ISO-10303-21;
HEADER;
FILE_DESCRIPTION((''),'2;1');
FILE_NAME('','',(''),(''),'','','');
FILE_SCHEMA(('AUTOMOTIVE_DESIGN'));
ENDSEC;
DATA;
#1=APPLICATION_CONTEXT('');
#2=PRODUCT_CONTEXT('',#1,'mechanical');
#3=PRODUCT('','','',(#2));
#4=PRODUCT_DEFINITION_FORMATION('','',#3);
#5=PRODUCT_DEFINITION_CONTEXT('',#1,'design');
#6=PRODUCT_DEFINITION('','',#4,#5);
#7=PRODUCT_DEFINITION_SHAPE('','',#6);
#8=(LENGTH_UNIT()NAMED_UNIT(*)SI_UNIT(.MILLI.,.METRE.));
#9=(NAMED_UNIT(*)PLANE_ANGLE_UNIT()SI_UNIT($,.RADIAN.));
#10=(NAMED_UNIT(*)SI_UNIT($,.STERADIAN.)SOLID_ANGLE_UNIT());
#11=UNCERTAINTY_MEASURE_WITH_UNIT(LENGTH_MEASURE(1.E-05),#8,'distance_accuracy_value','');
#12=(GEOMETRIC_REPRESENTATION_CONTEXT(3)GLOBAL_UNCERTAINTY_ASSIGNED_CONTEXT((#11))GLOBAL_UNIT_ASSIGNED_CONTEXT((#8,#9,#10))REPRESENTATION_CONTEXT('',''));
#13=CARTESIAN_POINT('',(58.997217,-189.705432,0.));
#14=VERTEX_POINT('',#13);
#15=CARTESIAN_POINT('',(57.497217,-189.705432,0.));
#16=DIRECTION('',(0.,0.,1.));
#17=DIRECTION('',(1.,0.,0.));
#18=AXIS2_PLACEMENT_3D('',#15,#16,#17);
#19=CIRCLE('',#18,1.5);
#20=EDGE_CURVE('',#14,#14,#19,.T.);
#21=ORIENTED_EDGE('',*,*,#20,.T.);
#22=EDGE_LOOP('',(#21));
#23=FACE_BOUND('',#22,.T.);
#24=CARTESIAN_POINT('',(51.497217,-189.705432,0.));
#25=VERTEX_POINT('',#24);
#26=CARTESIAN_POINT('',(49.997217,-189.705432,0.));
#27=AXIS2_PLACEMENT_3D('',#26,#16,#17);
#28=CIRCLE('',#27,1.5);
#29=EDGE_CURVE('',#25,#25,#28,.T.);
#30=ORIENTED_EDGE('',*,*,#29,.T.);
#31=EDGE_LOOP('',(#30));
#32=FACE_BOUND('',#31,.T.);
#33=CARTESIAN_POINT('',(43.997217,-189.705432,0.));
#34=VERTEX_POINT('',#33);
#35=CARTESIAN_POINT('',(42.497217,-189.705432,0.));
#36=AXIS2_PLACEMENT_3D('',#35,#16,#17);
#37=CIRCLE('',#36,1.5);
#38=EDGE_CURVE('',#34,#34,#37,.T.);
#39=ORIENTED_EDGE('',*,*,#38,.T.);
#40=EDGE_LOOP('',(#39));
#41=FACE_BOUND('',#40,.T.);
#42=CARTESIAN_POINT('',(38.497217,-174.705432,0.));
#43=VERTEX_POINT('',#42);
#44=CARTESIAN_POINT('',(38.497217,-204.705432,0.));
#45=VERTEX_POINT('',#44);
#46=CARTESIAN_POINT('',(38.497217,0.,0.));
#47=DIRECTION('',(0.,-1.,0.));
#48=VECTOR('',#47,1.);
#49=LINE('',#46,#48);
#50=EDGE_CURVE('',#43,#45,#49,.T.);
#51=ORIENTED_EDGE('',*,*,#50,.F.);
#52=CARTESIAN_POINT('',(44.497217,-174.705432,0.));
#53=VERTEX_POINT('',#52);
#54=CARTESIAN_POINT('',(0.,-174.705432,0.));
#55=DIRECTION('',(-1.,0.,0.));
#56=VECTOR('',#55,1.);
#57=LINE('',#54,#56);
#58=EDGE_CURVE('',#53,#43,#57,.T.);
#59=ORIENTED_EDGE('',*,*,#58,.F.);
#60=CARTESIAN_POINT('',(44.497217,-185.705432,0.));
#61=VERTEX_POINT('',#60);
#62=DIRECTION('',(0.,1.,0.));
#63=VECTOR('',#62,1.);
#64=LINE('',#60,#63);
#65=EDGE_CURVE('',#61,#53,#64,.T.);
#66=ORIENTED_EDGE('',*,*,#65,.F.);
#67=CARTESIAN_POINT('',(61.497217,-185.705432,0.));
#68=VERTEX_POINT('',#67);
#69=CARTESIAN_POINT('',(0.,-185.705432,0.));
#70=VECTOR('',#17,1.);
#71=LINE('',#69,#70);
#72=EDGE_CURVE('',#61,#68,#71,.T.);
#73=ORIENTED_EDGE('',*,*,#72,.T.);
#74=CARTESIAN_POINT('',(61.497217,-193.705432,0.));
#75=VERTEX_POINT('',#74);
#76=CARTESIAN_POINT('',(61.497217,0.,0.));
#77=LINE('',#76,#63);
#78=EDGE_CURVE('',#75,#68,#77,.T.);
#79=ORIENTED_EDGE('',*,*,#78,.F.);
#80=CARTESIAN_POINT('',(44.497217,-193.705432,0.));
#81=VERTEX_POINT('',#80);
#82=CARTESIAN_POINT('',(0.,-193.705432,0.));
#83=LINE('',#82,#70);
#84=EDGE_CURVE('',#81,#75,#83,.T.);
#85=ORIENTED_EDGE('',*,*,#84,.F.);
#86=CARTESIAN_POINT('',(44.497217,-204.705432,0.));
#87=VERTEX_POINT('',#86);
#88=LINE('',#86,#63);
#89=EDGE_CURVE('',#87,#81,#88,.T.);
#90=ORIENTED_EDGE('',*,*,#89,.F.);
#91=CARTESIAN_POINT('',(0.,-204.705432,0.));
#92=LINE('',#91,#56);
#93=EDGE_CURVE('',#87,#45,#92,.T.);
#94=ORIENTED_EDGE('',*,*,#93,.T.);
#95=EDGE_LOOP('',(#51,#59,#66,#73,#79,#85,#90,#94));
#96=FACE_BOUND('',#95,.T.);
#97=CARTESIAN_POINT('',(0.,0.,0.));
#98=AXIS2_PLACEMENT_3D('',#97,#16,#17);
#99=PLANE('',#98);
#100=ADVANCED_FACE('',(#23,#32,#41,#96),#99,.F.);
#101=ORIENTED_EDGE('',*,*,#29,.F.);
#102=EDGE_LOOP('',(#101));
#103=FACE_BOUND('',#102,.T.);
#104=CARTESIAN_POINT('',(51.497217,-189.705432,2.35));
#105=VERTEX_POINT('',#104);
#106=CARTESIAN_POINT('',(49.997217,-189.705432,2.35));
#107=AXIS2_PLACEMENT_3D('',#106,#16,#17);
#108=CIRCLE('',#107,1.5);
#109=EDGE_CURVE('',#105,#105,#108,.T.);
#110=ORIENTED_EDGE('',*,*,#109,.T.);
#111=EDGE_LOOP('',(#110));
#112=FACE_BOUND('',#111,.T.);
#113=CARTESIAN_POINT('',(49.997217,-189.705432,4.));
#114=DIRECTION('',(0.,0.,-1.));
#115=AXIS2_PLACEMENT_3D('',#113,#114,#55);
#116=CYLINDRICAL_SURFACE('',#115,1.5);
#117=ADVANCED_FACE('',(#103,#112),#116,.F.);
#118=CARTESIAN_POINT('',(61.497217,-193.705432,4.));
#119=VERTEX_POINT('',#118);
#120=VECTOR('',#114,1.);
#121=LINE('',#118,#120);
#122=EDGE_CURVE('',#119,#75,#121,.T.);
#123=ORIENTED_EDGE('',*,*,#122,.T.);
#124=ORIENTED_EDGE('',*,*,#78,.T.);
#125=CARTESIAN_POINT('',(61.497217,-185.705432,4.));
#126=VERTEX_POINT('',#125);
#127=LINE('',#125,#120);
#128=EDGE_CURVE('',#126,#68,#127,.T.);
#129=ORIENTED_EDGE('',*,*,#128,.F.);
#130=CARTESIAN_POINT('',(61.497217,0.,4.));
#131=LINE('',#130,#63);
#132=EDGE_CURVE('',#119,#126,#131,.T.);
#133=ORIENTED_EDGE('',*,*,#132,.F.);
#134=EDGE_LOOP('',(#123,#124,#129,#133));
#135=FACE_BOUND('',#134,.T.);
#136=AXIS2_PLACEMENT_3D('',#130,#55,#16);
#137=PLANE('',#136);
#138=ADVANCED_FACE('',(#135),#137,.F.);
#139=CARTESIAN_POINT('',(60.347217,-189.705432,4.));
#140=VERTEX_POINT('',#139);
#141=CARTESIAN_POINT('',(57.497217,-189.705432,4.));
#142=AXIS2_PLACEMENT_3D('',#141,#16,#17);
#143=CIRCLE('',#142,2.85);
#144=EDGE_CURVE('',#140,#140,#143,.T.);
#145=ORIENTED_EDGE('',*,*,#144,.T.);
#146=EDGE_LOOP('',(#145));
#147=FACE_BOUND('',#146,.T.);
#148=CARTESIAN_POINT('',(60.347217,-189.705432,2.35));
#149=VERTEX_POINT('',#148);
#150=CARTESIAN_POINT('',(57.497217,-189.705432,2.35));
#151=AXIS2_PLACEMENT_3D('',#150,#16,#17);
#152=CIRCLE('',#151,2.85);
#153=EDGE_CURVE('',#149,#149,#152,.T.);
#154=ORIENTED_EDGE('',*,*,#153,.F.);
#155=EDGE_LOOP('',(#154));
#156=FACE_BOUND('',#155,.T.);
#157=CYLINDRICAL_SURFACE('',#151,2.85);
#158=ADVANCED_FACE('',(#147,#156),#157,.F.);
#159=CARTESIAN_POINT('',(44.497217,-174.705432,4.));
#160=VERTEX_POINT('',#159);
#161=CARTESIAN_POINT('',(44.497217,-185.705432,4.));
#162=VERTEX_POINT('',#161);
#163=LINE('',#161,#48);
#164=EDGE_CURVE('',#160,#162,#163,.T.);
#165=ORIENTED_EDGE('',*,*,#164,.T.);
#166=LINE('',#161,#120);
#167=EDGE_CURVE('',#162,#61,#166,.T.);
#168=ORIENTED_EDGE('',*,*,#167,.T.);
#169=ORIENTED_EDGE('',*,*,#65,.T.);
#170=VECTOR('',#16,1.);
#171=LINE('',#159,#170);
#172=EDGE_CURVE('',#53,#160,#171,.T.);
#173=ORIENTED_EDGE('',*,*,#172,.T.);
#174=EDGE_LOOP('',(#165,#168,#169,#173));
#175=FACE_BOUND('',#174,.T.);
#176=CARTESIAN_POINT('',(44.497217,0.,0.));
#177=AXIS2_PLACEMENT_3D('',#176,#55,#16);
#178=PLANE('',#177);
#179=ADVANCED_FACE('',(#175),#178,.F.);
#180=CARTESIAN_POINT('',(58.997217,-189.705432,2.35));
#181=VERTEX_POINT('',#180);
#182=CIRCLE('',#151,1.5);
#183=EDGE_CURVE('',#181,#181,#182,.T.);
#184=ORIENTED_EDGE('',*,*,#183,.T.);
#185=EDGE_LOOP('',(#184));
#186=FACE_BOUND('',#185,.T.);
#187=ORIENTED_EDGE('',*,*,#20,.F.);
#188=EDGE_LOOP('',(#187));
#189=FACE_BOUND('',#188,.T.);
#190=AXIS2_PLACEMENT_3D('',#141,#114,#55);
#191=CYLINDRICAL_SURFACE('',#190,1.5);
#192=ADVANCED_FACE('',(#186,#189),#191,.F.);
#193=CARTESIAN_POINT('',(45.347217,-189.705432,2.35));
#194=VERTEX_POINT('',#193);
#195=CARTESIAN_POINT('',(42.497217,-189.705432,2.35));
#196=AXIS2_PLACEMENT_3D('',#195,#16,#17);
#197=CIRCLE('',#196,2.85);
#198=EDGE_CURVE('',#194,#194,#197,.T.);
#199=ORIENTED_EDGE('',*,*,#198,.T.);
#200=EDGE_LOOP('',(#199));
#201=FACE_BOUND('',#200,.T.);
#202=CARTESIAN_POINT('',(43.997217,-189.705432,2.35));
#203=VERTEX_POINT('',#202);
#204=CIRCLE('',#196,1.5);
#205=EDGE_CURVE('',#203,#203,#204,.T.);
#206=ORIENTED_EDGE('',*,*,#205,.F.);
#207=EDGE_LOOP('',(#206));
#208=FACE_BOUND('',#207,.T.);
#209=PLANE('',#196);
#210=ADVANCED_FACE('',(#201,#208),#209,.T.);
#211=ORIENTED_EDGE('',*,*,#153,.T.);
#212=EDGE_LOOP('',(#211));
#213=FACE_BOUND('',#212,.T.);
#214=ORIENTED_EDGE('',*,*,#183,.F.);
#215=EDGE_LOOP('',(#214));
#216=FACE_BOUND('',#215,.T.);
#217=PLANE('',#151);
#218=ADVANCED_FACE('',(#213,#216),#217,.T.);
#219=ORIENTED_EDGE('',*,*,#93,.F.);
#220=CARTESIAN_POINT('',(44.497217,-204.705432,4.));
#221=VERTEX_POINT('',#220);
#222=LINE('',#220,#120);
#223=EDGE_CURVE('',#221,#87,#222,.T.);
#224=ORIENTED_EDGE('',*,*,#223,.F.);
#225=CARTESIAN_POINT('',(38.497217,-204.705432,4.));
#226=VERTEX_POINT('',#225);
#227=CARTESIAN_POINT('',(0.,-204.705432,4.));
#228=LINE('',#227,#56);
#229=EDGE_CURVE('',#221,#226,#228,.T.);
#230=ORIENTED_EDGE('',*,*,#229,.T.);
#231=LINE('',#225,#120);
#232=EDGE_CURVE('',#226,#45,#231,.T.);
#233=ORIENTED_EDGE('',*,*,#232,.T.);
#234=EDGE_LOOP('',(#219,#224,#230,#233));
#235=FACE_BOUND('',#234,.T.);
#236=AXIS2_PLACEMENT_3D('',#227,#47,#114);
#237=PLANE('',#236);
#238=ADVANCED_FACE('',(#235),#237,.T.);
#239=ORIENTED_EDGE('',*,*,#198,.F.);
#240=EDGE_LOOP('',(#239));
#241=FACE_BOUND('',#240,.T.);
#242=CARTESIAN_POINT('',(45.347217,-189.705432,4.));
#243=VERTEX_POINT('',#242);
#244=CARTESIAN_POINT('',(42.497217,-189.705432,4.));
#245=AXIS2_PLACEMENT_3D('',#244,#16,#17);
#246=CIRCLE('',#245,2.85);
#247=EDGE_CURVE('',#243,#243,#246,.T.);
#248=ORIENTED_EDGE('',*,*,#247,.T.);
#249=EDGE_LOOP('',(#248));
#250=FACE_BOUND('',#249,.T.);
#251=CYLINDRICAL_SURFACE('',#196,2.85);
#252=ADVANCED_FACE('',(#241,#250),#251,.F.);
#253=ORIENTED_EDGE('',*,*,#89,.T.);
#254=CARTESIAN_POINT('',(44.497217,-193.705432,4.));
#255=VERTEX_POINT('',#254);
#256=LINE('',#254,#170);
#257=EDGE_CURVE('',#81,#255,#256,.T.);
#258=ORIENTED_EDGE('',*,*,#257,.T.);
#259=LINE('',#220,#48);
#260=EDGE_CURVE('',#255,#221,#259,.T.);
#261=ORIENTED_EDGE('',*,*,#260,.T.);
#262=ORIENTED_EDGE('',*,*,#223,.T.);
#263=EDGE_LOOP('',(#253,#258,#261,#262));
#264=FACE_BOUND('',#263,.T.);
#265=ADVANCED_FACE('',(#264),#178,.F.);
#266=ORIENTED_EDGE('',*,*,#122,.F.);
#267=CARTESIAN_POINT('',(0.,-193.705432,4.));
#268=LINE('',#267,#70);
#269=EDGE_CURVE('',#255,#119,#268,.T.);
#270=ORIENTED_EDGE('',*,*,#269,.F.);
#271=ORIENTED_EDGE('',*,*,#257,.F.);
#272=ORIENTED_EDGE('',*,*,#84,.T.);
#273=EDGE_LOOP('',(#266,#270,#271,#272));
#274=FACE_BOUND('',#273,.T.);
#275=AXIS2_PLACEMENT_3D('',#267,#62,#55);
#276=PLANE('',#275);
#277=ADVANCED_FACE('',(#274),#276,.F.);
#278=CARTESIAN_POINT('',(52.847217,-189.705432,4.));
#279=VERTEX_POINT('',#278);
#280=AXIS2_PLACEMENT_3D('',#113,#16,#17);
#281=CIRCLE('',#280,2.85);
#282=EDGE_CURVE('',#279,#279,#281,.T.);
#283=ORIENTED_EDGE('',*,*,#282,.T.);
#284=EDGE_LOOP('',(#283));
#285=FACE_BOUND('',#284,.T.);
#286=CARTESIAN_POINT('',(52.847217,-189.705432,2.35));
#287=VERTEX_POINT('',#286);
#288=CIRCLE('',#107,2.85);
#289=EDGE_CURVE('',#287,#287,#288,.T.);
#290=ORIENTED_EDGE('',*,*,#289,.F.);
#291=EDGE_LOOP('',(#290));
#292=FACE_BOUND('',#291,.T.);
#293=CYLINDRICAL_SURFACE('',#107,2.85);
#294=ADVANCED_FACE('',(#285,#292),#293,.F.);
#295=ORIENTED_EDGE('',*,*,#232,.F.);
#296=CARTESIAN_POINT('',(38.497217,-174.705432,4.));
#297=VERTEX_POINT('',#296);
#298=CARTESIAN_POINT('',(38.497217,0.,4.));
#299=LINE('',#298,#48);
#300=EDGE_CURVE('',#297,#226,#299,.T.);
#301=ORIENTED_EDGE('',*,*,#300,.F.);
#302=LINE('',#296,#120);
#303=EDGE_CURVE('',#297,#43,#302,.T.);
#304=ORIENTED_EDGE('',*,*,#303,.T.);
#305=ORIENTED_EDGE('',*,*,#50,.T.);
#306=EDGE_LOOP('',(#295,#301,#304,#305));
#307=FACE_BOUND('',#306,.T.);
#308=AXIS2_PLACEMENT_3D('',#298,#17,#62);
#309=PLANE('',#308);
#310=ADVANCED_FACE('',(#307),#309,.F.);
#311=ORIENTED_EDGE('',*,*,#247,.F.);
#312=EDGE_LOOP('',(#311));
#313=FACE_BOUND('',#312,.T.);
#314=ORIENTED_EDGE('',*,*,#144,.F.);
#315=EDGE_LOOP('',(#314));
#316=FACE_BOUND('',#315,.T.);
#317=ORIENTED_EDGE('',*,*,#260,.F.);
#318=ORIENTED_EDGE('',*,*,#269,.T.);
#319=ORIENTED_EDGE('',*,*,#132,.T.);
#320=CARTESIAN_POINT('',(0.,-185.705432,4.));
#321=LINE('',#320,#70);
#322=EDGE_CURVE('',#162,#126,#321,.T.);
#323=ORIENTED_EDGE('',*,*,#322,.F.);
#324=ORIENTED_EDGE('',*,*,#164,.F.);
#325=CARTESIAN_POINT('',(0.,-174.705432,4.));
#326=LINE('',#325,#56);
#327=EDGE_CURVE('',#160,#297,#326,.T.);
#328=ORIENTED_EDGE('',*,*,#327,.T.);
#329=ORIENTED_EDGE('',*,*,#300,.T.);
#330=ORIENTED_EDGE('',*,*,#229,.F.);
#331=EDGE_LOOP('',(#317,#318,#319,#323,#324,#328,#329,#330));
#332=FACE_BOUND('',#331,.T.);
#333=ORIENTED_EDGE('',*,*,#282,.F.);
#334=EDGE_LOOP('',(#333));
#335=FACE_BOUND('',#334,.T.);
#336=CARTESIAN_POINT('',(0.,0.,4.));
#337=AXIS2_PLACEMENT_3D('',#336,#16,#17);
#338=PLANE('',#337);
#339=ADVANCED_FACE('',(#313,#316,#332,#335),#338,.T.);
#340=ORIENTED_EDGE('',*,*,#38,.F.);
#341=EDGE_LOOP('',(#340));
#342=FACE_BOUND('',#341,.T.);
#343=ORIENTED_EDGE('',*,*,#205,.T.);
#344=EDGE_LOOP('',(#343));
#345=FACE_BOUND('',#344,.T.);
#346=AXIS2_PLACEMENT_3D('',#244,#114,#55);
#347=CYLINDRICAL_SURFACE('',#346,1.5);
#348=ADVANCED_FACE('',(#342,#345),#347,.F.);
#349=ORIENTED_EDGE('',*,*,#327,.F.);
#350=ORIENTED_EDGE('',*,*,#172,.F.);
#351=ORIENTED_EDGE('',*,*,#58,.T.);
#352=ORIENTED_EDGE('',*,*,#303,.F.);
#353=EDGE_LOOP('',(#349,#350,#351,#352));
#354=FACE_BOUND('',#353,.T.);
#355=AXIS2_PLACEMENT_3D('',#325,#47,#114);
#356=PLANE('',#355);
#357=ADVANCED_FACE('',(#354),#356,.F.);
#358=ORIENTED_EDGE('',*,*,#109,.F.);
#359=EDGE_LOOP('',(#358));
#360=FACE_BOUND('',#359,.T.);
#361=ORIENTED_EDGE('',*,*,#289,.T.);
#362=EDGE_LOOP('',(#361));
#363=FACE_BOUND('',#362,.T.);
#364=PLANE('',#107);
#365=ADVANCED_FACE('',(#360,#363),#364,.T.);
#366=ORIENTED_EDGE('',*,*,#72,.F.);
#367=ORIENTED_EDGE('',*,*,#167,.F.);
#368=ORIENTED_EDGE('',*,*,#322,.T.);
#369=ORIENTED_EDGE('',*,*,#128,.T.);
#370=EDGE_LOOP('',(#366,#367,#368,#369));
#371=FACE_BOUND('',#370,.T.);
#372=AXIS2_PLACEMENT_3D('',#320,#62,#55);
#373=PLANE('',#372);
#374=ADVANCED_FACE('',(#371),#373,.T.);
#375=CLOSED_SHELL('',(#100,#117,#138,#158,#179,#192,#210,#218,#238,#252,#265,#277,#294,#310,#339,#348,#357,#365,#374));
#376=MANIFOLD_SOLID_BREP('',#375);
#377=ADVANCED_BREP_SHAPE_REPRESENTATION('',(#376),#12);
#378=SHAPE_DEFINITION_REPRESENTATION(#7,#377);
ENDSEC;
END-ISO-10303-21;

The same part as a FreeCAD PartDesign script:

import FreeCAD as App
import Part
import Sketcher
from FreeCAD import Vector
Q = App.Units.Quantity


def add_polygon(sketch, points):
    """Adds a closed chain of lines whose ends are joined by coincident constraints."""
    first, n = sketch.GeometryCount, len(points)
    for a, b in zip(points, points[1:] + points[:1]):
        sketch.addGeometry(Part.LineSegment(App.Vector(*a, 0), App.Vector(*b, 0)), False)
    for i in range(n):
        sketch.addConstraint(Sketcher.Constraint("Coincident", first + i, 2, first + (i + 1) % n, 1))

doc = App.newDocument("Part")
body = doc.addObject("PartDesign::Body", "Body")

sketch1 = body.newObject("Sketcher::SketchObject", "Sketch")
sketch1.AttachmentSupport = (doc.getObject("XY_Plane"), [""])
sketch1.MapMode = "FlatFace"
add_polygon(sketch1, [(38.5, -204.7), (46.5, -204.7), (46.5, -193.7), (61.5, -193.7), (61.5, -185.7), (46.5, -185.7), (46.5, -174.7), (38.5, -174.7)])
sketch1.addGeometry(Part.Circle(Vector(42.5, -189.7, 0), Vector(0, 0, 1), 1.5), False)
sketch1.addGeometry(Part.Circle(Vector(50, -189.7, 0), Vector(0, 0, 1), 1.5), False)
sketch1.addGeometry(Part.Circle(Vector(57.5, -189.7, 0), Vector(0, 0, 1), 1.5), False)
sketch1.addConstraint([
    Sketcher.Constraint("Horizontal", 0),
    Sketcher.Constraint("Vertical", 1),
    Sketcher.Constraint("Horizontal", 2),
    Sketcher.Constraint("Vertical", 3),
    Sketcher.Constraint("Horizontal", 4),
    Sketcher.Constraint("Vertical", 5),
    Sketcher.Constraint("Horizontal", 6),
    Sketcher.Constraint("Vertical", 7),
    Sketcher.Constraint("Equal", 8, 9),
    Sketcher.Constraint("Equal", 9, 10),
    Sketcher.Constraint("Horizontal", 8, 3, 9, 3),
    Sketcher.Constraint("Horizontal", 9, 3, 10, 3),
    Sketcher.Constraint("Vertical", 1, 2, 4, 2),
    Sketcher.Constraint("Equal", 6, 3),
    Sketcher.Constraint("Equal", 1, 5),
    Sketcher.Constraint("Diameter", 8, Q("3 mm")),
    Sketcher.Constraint("DistanceX", 0, 1, 0, 2, Q("8 mm")),
    Sketcher.Constraint("DistanceX", 2, 1, 2, 2, Q("15 mm")),
    Sketcher.Constraint("DistanceY", 1, 1, 1, 2, Q("11 mm")),
    Sketcher.Constraint("DistanceX", 8, 3, 10, 3, Q("15 mm")),
    Sketcher.Constraint("DistanceY", 0, 2, 9, 3, Q("15 mm")),
    Sketcher.Constraint("DistanceX", 8, 3, 0, 2, Q("4 mm")),
    Sketcher.Constraint("DistanceX", 8, 3, 9, 3, Q("7.5 mm")),
    Sketcher.Constraint("DistanceY", 8, 3, -1, 1, Q("189.705432 mm")),
    Sketcher.Constraint("DistanceX", -1, 1, 8, 3, Q("42.497217 mm")),
])
pad1 = body.newObject("PartDesign::Pad", "Pad")
pad1.Profile = sketch1
pad1.Length = 4

sketch2 = body.newObject("Sketcher::SketchObject", "Sketch001")
sketch2.AttachmentSupport = (doc.getObject("XY_Plane"), [""])
sketch2.MapMode = "FlatFace"
sketch2.AttachmentOffset = App.Placement(Vector(0, 0, 4), App.Rotation())
sketch2.addGeometry([
    Part.Circle(Vector(42.5, -189.7, 0), Vector(0, 0, 1), 2.9),
    Part.Circle(Vector(50, -189.7, 0), Vector(0, 0, 1), 2.9),
    Part.Circle(Vector(57.5, -189.7, 0), Vector(0, 0, 1), 2.9),
], False)
sketch2.addConstraint([
    Sketcher.Constraint("Equal", 0, 1),
    Sketcher.Constraint("Equal", 1, 2),
    Sketcher.Constraint("Horizontal", 0, 3, 1, 3),
    Sketcher.Constraint("Horizontal", 1, 3, 2, 3),
    Sketcher.Constraint("Diameter", 0, Q("5.7 mm")),
    Sketcher.Constraint("DistanceX", 0, 3, 2, 3, Q("15 mm")),
    Sketcher.Constraint("DistanceX", 0, 3, 1, 3, Q("7.5 mm")),
    Sketcher.Constraint("DistanceY", 0, 3, -1, 1, Q("189.705432 mm")),
    Sketcher.Constraint("DistanceX", -1, 1, 0, 3, Q("42.497217 mm")),
])
pocket1 = body.newObject("PartDesign::Pocket", "Pocket")
pocket1.Profile = sketch2
pocket1.Length = 1.65

sketch3 = body.newObject("Sketcher::SketchObject", "Sketch002")
sketch3.AttachmentSupport = (doc.getObject("YZ_Plane"), [""])
sketch3.MapMode = "FlatFace"
sketch3.AttachmentOffset = App.Placement(Vector(0, 0, 46.497217), App.Rotation())
add_polygon(sketch3, [(-193.7, 4), (-204.7, 4), (-204.7, 0), (-193.7, 0)])
add_polygon(sketch3, [(-174.7, 4), (-185.7, 4), (-185.7, 0), (-174.7, 0)])
sketch3.addConstraint([
    Sketcher.Constraint("Horizontal", 0),
    Sketcher.Constraint("Vertical", 1),
    Sketcher.Constraint("Horizontal", 2),
    Sketcher.Constraint("Vertical", 3),
    Sketcher.Constraint("Horizontal", 4),
    Sketcher.Constraint("Vertical", 5),
    Sketcher.Constraint("Horizontal", 6),
    Sketcher.Constraint("Vertical", 7),
    Sketcher.Constraint("PointOnObject", 1, 2, -1),
    Sketcher.Constraint("PointOnObject", 5, 2, -1),
    Sketcher.Constraint("Horizontal", 3, 2, 4, 2),
    Sketcher.Constraint("Equal", 2, 4),
    Sketcher.Constraint("DistanceX", 0, 2, 0, 1, Q("11 mm")),
    Sketcher.Constraint("DistanceY", 1, 2, 1, 1, Q("4 mm")),
    Sketcher.Constraint("DistanceX", 3, 2, 4, 2, Q("8 mm")),
    Sketcher.Constraint("DistanceX", 0, 2, -1, 1, Q("204.705432 mm")),
])
pocket2 = body.newObject("PartDesign::Pocket", "Pocket001")
pocket2.Profile = sketch3
pocket2.Length = 2

doc.recompute()
